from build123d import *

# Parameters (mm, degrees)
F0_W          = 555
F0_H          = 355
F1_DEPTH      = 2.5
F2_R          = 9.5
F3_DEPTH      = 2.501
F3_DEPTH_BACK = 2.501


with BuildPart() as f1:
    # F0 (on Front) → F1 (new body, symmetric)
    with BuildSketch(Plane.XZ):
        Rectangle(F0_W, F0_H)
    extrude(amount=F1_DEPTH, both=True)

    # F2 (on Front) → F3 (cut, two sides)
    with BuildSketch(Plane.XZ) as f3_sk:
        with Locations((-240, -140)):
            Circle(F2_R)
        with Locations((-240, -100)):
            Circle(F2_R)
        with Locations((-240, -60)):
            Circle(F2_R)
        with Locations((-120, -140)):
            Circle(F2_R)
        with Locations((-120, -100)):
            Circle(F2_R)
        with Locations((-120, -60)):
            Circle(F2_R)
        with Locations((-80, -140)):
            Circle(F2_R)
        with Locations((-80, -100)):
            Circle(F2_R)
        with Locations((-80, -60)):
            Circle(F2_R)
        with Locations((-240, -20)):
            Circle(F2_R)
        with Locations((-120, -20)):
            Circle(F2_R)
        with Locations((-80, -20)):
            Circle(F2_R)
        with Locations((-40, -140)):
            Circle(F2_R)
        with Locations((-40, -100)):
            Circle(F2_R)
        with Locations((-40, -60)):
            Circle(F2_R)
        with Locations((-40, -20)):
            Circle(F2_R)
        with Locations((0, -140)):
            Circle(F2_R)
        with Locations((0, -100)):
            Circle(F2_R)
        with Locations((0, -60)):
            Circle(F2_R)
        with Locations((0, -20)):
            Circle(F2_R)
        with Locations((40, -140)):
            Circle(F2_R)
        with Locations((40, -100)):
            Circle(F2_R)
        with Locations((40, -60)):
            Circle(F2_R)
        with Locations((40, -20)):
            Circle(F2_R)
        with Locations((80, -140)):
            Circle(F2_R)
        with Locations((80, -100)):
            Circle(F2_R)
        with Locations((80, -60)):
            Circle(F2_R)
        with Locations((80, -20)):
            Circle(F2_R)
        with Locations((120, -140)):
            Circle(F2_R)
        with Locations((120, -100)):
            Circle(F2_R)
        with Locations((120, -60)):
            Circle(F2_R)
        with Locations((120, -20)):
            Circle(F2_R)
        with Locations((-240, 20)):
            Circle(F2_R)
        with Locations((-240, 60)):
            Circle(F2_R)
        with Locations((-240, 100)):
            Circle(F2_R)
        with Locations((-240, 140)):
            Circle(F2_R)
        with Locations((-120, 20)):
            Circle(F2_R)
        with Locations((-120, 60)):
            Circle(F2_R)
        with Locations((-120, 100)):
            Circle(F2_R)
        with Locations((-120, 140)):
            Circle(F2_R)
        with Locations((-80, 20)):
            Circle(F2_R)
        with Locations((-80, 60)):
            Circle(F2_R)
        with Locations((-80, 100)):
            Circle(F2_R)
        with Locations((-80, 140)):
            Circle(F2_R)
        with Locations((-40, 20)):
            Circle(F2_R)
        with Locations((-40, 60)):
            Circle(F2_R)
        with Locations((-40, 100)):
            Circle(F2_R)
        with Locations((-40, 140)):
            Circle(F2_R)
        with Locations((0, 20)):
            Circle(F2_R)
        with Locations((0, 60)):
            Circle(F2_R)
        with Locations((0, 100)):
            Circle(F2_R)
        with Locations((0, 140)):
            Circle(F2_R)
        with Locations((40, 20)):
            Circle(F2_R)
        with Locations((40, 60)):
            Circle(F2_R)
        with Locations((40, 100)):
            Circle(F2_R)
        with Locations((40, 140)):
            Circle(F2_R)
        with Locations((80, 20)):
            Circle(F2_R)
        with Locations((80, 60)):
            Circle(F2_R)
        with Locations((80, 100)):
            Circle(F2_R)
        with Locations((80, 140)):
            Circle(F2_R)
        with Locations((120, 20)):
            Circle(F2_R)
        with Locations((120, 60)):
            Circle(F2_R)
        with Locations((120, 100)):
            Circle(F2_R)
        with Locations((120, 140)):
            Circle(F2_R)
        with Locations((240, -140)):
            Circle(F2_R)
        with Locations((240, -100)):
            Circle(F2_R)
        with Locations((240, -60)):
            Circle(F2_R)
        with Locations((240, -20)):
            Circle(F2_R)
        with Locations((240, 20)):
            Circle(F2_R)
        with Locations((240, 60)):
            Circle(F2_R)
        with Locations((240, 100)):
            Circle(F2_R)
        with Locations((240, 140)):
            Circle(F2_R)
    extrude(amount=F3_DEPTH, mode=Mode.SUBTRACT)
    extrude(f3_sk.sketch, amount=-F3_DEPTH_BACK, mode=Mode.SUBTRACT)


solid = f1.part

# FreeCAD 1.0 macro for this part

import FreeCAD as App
import Part
import Sketcher

V = App.Vector


def add_polygon(sketch, points):
    """Adds a closed chain of lines whose ends are joined by coincident constraints."""
    first, n = sketch.GeometryCount, len(points)
    for a, b in zip(points, points[1:] + points[:1]):
        sketch.addGeometry(Part.LineSegment(App.Vector(*a, 0), App.Vector(*b, 0)), False)
    for i in range(n):
        sketch.addConstraint(Sketcher.Constraint("Coincident", first + i, 2, first + (i + 1) % n, 1))

doc = App.newDocument("Part")
body = doc.addObject("PartDesign::Body", "Body")

# Sketch on XZ plane
sketch1 = body.newObject("Sketcher::SketchObject", "Sketch")
sketch1.AttachmentSupport = (doc.getObject("XZ_Plane"), [""])
sketch1.MapMode = "FlatFace"
add_polygon(sketch1, [(-278, 178), (-278, -178), (278, -178), (278, 178)])  # lines 0-3
sketch1.addConstraint(Sketcher.Constraint("Vertical", 0))
sketch1.addConstraint(Sketcher.Constraint("Horizontal", 1))
sketch1.addConstraint(Sketcher.Constraint("Vertical", 2))
sketch1.addConstraint(Sketcher.Constraint("Horizontal", 3))
sketch1.addConstraint(Sketcher.Constraint("Symmetric", 0, 2, 2, 2, -1, 1))
sketch1.addConstraint(Sketcher.Constraint("DistanceX", 1, 1, 1, 2, 555.0))
sketch1.addConstraint(Sketcher.Constraint("DistanceY", 0, 2, 0, 1, 355.0))
pad1 = body.newObject("PartDesign::Pad", "Pad")
pad1.Profile = sketch1
pad1.Length = 5
pad1.Midplane = True

# Sketch on XZ plane
sketch2 = body.newObject("Sketcher::SketchObject", "Sketch001")
sketch2.AttachmentSupport = (doc.getObject("XZ_Plane"), [""])
sketch2.MapMode = "FlatFace"
sketch2.addGeometry(Part.Circle(V(-240, -140, 0), V(0, 0, 1), 10), False)
sketch2.addGeometry(Part.Circle(V(-240, -100, 0), V(0, 0, 1), 10), False)
sketch2.addGeometry(Part.Circle(V(-240, -60, 0), V(0, 0, 1), 10), False)
sketch2.addGeometry(Part.Circle(V(-120, -140, 0), V(0, 0, 1), 10), False)
sketch2.addGeometry(Part.Circle(V(-120, -100, 0), V(0, 0, 1), 10), False)
sketch2.addGeometry(Part.Circle(V(-120, -60, 0), V(0, 0, 1), 10), False)
sketch2.addGeometry(Part.Circle(V(-80, -140, 0), V(0, 0, 1), 10), False)
sketch2.addGeometry(Part.Circle(V(-80, -100, 0), V(0, 0, 1), 10), False)
sketch2.addGeometry(Part.Circle(V(-80, -60, 0), V(0, 0, 1), 10), False)
sketch2.addGeometry(Part.Circle(V(-240, -20, 0), V(0, 0, 1), 10), False)
sketch2.addGeometry(Part.Circle(V(-120, -20, 0), V(0, 0, 1), 10), False)
sketch2.addGeometry(Part.Circle(V(-80, -20, 0), V(0, 0, 1), 10), False)
sketch2.addGeometry(Part.Circle(V(-40, -140, 0), V(0, 0, 1), 10), False)
sketch2.addGeometry(Part.Circle(V(-40, -100, 0), V(0, 0, 1), 10), False)
sketch2.addGeometry(Part.Circle(V(-40, -60, 0), V(0, 0, 1), 10), False)
sketch2.addGeometry(Part.Circle(V(-40, -20, 0), V(0, 0, 1), 10), False)
sketch2.addGeometry(Part.Circle(V(0, -140, 0), V(0, 0, 1), 10), False)
sketch2.addGeometry(Part.Circle(V(0, -100, 0), V(0, 0, 1), 10), False)
sketch2.addGeometry(Part.Circle(V(0, -60, 0), V(0, 0, 1), 10), False)
sketch2.addGeometry(Part.Circle(V(0, -20, 0), V(0, 0, 1), 10), False)
sketch2.addGeometry(Part.Circle(V(40, -140, 0), V(0, 0, 1), 10), False)
sketch2.addGeometry(Part.Circle(V(40, -100, 0), V(0, 0, 1), 10), False)
sketch2.addGeometry(Part.Circle(V(40, -60, 0), V(0, 0, 1), 10), False)
sketch2.addGeometry(Part.Circle(V(40, -20, 0), V(0, 0, 1), 10), False)
sketch2.addGeometry(Part.Circle(V(80, -140, 0), V(0, 0, 1), 10), False)
sketch2.addGeometry(Part.Circle(V(80, -100, 0), V(0, 0, 1), 10), False)
sketch2.addGeometry(Part.Circle(V(80, -60, 0), V(0, 0, 1), 10), False)
sketch2.addGeometry(Part.Circle(V(80, -20, 0), V(0, 0, 1), 10), False)
sketch2.addGeometry(Part.Circle(V(120, -140, 0), V(0, 0, 1), 10), False)
sketch2.addGeometry(Part.Circle(V(120, -100, 0), V(0, 0, 1), 10), False)
sketch2.addGeometry(Part.Circle(V(120, -60, 0), V(0, 0, 1), 10), False)
sketch2.addGeometry(Part.Circle(V(120, -20, 0), V(0, 0, 1), 10), False)
sketch2.addGeometry(Part.Circle(V(-240, 20, 0), V(0, 0, 1), 10), False)
sketch2.addGeometry(Part.Circle(V(-240, 60, 0), V(0, 0, 1), 10), False)
sketch2.addGeometry(Part.Circle(V(-240, 100, 0), V(0, 0, 1), 10), False)
sketch2.addGeometry(Part.Circle(V(-240, 140, 0), V(0, 0, 1), 10), False)
sketch2.addGeometry(Part.Circle(V(-120, 20, 0), V(0, 0, 1), 10), False)
sketch2.addGeometry(Part.Circle(V(-120, 60, 0), V(0, 0, 1), 10), False)
sketch2.addGeometry(Part.Circle(V(-120, 100, 0), V(0, 0, 1), 10), False)
sketch2.addGeometry(Part.Circle(V(-120, 140, 0), V(0, 0, 1), 10), False)
sketch2.addGeometry(Part.Circle(V(-80, 20, 0), V(0, 0, 1), 10), False)
sketch2.addGeometry(Part.Circle(V(-80, 60, 0), V(0, 0, 1), 10), False)
sketch2.addGeometry(Part.Circle(V(-80, 100, 0), V(0, 0, 1), 10), False)
sketch2.addGeometry(Part.Circle(V(-80, 140, 0), V(0, 0, 1), 10), False)
sketch2.addGeometry(Part.Circle(V(-40, 20, 0), V(0, 0, 1), 10), False)
sketch2.addGeometry(Part.Circle(V(-40, 60, 0), V(0, 0, 1), 10), False)
sketch2.addGeometry(Part.Circle(V(-40, 100, 0), V(0, 0, 1), 10), False)
sketch2.addGeometry(Part.Circle(V(-40, 140, 0), V(0, 0, 1), 10), False)
sketch2.addGeometry(Part.Circle(V(0, 20, 0), V(0, 0, 1), 10), False)
sketch2.addGeometry(Part.Circle(V(0, 60, 0), V(0, 0, 1), 10), False)
sketch2.addGeometry(Part.Circle(V(0, 100, 0), V(0, 0, 1), 10), False)
sketch2.addGeometry(Part.Circle(V(0, 140, 0), V(0, 0, 1), 10), False)
sketch2.addGeometry(Part.Circle(V(40, 20, 0), V(0, 0, 1), 10), False)
sketch2.addGeometry(Part.Circle(V(40, 60, 0), V(0, 0, 1), 10), False)
sketch2.addGeometry(Part.Circle(V(40, 100, 0), V(0, 0, 1), 10), False)
sketch2.addGeometry(Part.Circle(V(40, 140, 0), V(0, 0, 1), 10), False)
sketch2.addGeometry(Part.Circle(V(80, 20, 0), V(0, 0, 1), 10), False)
sketch2.addGeometry(Part.Circle(V(80, 60, 0), V(0, 0, 1), 10), False)
sketch2.addGeometry(Part.Circle(V(80, 100, 0), V(0, 0, 1), 10), False)
sketch2.addGeometry(Part.Circle(V(80, 140, 0), V(0, 0, 1), 10), False)
sketch2.addGeometry(Part.Circle(V(120, 20, 0), V(0, 0, 1), 10), False)
sketch2.addGeometry(Part.Circle(V(120, 60, 0), V(0, 0, 1), 10), False)
sketch2.addGeometry(Part.Circle(V(120, 100, 0), V(0, 0, 1), 10), False)
sketch2.addGeometry(Part.Circle(V(120, 140, 0), V(0, 0, 1), 10), False)
sketch2.addGeometry(Part.Circle(V(240, -140, 0), V(0, 0, 1), 10), False)
sketch2.addGeometry(Part.Circle(V(240, -100, 0), V(0, 0, 1), 10), False)
sketch2.addGeometry(Part.Circle(V(240, -60, 0), V(0, 0, 1), 10), False)
sketch2.addGeometry(Part.Circle(V(240, -20, 0), V(0, 0, 1), 10), False)
sketch2.addGeometry(Part.Circle(V(240, 20, 0), V(0, 0, 1), 10), False)
sketch2.addGeometry(Part.Circle(V(240, 60, 0), V(0, 0, 1), 10), False)
sketch2.addGeometry(Part.Circle(V(240, 100, 0), V(0, 0, 1), 10), False)
sketch2.addGeometry(Part.Circle(V(240, 140, 0), V(0, 0, 1), 10), False)
sketch2.addConstraint(Sketcher.Constraint("Equal", 0, 1))
sketch2.addConstraint(Sketcher.Constraint("Equal", 1, 2))
sketch2.addConstraint(Sketcher.Constraint("Equal", 2, 3))
sketch2.addConstraint(Sketcher.Constraint("Equal", 3, 4))
sketch2.addConstraint(Sketcher.Constraint("Equal", 4, 5))
sketch2.addConstraint(Sketcher.Constraint("Equal", 5, 6))
sketch2.addConstraint(Sketcher.Constraint("Equal", 6, 7))
sketch2.addConstraint(Sketcher.Constraint("Equal", 7, 8))
sketch2.addConstraint(Sketcher.Constraint("Equal", 8, 9))
sketch2.addConstraint(Sketcher.Constraint("Equal", 9, 10))
sketch2.addConstraint(Sketcher.Constraint("Equal", 10, 11))
sketch2.addConstraint(Sketcher.Constraint("Equal", 11, 12))
sketch2.addConstraint(Sketcher.Constraint("Equal", 12, 13))
sketch2.addConstraint(Sketcher.Constraint("Equal", 13, 14))
sketch2.addConstraint(Sketcher.Constraint("Equal", 14, 15))
sketch2.addConstraint(Sketcher.Constraint("Equal", 15, 16))
sketch2.addConstraint(Sketcher.Constraint("Equal", 16, 17))
sketch2.addConstraint(Sketcher.Constraint("Equal", 17, 18))
sketch2.addConstraint(Sketcher.Constraint("Equal", 18, 19))
sketch2.addConstraint(Sketcher.Constraint("Equal", 19, 20))
sketch2.addConstraint(Sketcher.Constraint("Equal", 20, 21))
sketch2.addConstraint(Sketcher.Constraint("Equal", 21, 22))
sketch2.addConstraint(Sketcher.Constraint("Equal", 22, 23))
sketch2.addConstraint(Sketcher.Constraint("Equal", 23, 24))
sketch2.addConstraint(Sketcher.Constraint("Equal", 24, 25))
sketch2.addConstraint(Sketcher.Constraint("Equal", 25, 26))
sketch2.addConstraint(Sketcher.Constraint("Equal", 26, 27))
sketch2.addConstraint(Sketcher.Constraint("Equal", 27, 28))
sketch2.addConstraint(Sketcher.Constraint("Equal", 28, 29))
sketch2.addConstraint(Sketcher.Constraint("Equal", 29, 30))
sketch2.addConstraint(Sketcher.Constraint("Equal", 30, 31))
sketch2.addConstraint(Sketcher.Constraint("Equal", 31, 32))
sketch2.addConstraint(Sketcher.Constraint("Equal", 32, 33))
sketch2.addConstraint(Sketcher.Constraint("Equal", 33, 34))
sketch2.addConstraint(Sketcher.Constraint("Equal", 34, 35))
sketch2.addConstraint(Sketcher.Constraint("Equal", 35, 36))
sketch2.addConstraint(Sketcher.Constraint("Equal", 36, 37))
sketch2.addConstraint(Sketcher.Constraint("Equal", 37, 38))
sketch2.addConstraint(Sketcher.Constraint("Equal", 38, 39))
sketch2.addConstraint(Sketcher.Constraint("Equal", 39, 40))
sketch2.addConstraint(Sketcher.Constraint("Equal", 40, 41))
sketch2.addConstraint(Sketcher.Constraint("Equal", 41, 42))
sketch2.addConstraint(Sketcher.Constraint("Equal", 42, 43))
sketch2.addConstraint(Sketcher.Constraint("Equal", 43, 44))
sketch2.addConstraint(Sketcher.Constraint("Equal", 44, 45))
sketch2.addConstraint(Sketcher.Constraint("Equal", 45, 46))
sketch2.addConstraint(Sketcher.Constraint("Equal", 46, 47))
sketch2.addConstraint(Sketcher.Constraint("Equal", 47, 48))
sketch2.addConstraint(Sketcher.Constraint("Equal", 48, 49))
sketch2.addConstraint(Sketcher.Constraint("Equal", 49, 50))
sketch2.addConstraint(Sketcher.Constraint("Equal", 50, 51))
sketch2.addConstraint(Sketcher.Constraint("Equal", 51, 52))
sketch2.addConstraint(Sketcher.Constraint("Equal", 52, 53))
sketch2.addConstraint(Sketcher.Constraint("Equal", 53, 54))
sketch2.addConstraint(Sketcher.Constraint("Equal", 54, 55))
sketch2.addConstraint(Sketcher.Constraint("Equal", 55, 56))
sketch2.addConstraint(Sketcher.Constraint("Equal", 56, 57))
sketch2.addConstraint(Sketcher.Constraint("Equal", 57, 58))
sketch2.addConstraint(Sketcher.Constraint("Equal", 58, 59))
sketch2.addConstraint(Sketcher.Constraint("Equal", 59, 60))
sketch2.addConstraint(Sketcher.Constraint("Equal", 60, 61))
sketch2.addConstraint(Sketcher.Constraint("Equal", 61, 62))
sketch2.addConstraint(Sketcher.Constraint("Equal", 62, 63))
sketch2.addConstraint(Sketcher.Constraint("Equal", 63, 64))
sketch2.addConstraint(Sketcher.Constraint("Equal", 64, 65))
sketch2.addConstraint(Sketcher.Constraint("Equal", 65, 66))
sketch2.addConstraint(Sketcher.Constraint("Equal", 66, 67))
sketch2.addConstraint(Sketcher.Constraint("Equal", 67, 68))
sketch2.addConstraint(Sketcher.Constraint("Equal", 68, 69))
sketch2.addConstraint(Sketcher.Constraint("Equal", 69, 70))
sketch2.addConstraint(Sketcher.Constraint("Equal", 70, 71))
sketch2.addConstraint(Sketcher.Constraint("Symmetric", 31, 3, 36, 3, -1, 1))
sketch2.addConstraint(Sketcher.Constraint("Symmetric", 30, 3, 37, 3, -1, 1))
sketch2.addConstraint(Sketcher.Constraint("Symmetric", 29, 3, 38, 3, -1, 1))
sketch2.addConstraint(Sketcher.Constraint("Symmetric", 28, 3, 39, 3, -1, 1))
sketch2.addConstraint(Sketcher.Constraint("Symmetric", 27, 3, 40, 3, -1, 1))
sketch2.addConstraint(Sketcher.Constraint("Symmetric", 26, 3, 41, 3, -1, 1))
sketch2.addConstraint(Sketcher.Constraint("Symmetric", 25, 3, 42, 3, -1, 1))
sketch2.addConstraint(Sketcher.Constraint("Symmetric", 24, 3, 43, 3, -1, 1))
sketch2.addConstraint(Sketcher.Constraint("Symmetric", 23, 3, 44, 3, -1, 1))
sketch2.addConstraint(Sketcher.Constraint("Symmetric", 22, 3, 45, 3, -1, 1))
sketch2.addConstraint(Sketcher.Constraint("Symmetric", 21, 3, 46, 3, -1, 1))
sketch2.addConstraint(Sketcher.Constraint("Symmetric", 20, 3, 47, 3, -1, 1))
sketch2.addConstraint(Sketcher.Constraint("Symmetric", 19, 3, 48, 3, -1, 1))
sketch2.addConstraint(Sketcher.Constraint("Symmetric", 18, 3, 49, 3, -1, 1))
sketch2.addConstraint(Sketcher.Constraint("Symmetric", 17, 3, 50, 3, -1, 1))
sketch2.addConstraint(Sketcher.Constraint("Symmetric", 16, 3, 51, 3, -1, 1))
sketch2.addConstraint(Sketcher.Constraint("Symmetric", 15, 3, 52, 3, -1, 1))
sketch2.addConstraint(Sketcher.Constraint("Symmetric", 14, 3, 53, 3, -1, 1))
sketch2.addConstraint(Sketcher.Constraint("Symmetric", 13, 3, 54, 3, -1, 1))
sketch2.addConstraint(Sketcher.Constraint("Symmetric", 12, 3, 55, 3, -1, 1))
sketch2.addConstraint(Sketcher.Constraint("Symmetric", 11, 3, 56, 3, -1, 1))
sketch2.addConstraint(Sketcher.Constraint("Symmetric", 8, 3, 57, 3, -1, 1))
sketch2.addConstraint(Sketcher.Constraint("Symmetric", 7, 3, 58, 3, -1, 1))
sketch2.addConstraint(Sketcher.Constraint("Symmetric", 6, 3, 59, 3, -1, 1))
sketch2.addConstraint(Sketcher.Constraint("Symmetric", 10, 3, 60, 3, -1, 1))
sketch2.addConstraint(Sketcher.Constraint("Symmetric", 5, 3, 61, 3, -1, 1))
sketch2.addConstraint(Sketcher.Constraint("Symmetric", 4, 3, 62, 3, -1, 1))
sketch2.addConstraint(Sketcher.Constraint("Symmetric", 3, 3, 63, 3, -1, 1))
sketch2.addConstraint(Sketcher.Constraint("Symmetric", 35, 3, 64, 3, -1, 1))
sketch2.addConstraint(Sketcher.Constraint("Symmetric", 34, 3, 65, 3, -1, 1))
sketch2.addConstraint(Sketcher.Constraint("Symmetric", 33, 3, 66, 3, -1, 1))
sketch2.addConstraint(Sketcher.Constraint("Symmetric", 32, 3, 67, 3, -1, 1))
sketch2.addConstraint(Sketcher.Constraint("Symmetric", 9, 3, 68, 3, -1, 1))
sketch2.addConstraint(Sketcher.Constraint("Symmetric", 2, 3, 69, 3, -1, 1))
sketch2.addConstraint(Sketcher.Constraint("Symmetric", 1, 3, 70, 3, -1, 1))
sketch2.addConstraint(Sketcher.Constraint("Symmetric", 0, 3, 71, 3, -1, 1))
sketch2.addConstraint(Sketcher.Constraint("Symmetric", 12, 3, 20, 3, -2))
sketch2.addConstraint(Sketcher.Constraint("Symmetric", 13, 3, 21, 3, -2))
sketch2.addConstraint(Sketcher.Constraint("Symmetric", 14, 3, 22, 3, -2))
sketch2.addConstraint(Sketcher.Constraint("Symmetric", 15, 3, 23, 3, -2))
sketch2.addConstraint(Sketcher.Constraint("Symmetric", 6, 3, 24, 3, -2))
sketch2.addConstraint(Sketcher.Constraint("Symmetric", 7, 3, 25, 3, -2))
sketch2.addConstraint(Sketcher.Constraint("Symmetric", 8, 3, 26, 3, -2))
sketch2.addConstraint(Sketcher.Constraint("Symmetric", 11, 3, 27, 3, -2))
sketch2.addConstraint(Sketcher.Constraint("Symmetric", 3, 3, 28, 3, -2))
sketch2.addConstraint(Sketcher.Constraint("Symmetric", 4, 3, 29, 3, -2))
sketch2.addConstraint(Sketcher.Constraint("Symmetric", 5, 3, 30, 3, -2))
sketch2.addConstraint(Sketcher.Constraint("Symmetric", 10, 3, 31, 3, -2))
sketch2.addConstraint(Sketcher.Constraint("Symmetric", 0, 3, 64, 3, -2))
sketch2.addConstraint(Sketcher.Constraint("Symmetric", 1, 3, 65, 3, -2))
sketch2.addConstraint(Sketcher.Constraint("Symmetric", 2, 3, 66, 3, -2))
sketch2.addConstraint(Sketcher.Constraint("Symmetric", 9, 3, 67, 3, -2))
sketch2.addConstraint(Sketcher.Constraint("PointOnObject", 16, 3, -2))
sketch2.addConstraint(Sketcher.Constraint("PointOnObject", 17, 3, -2))
sketch2.addConstraint(Sketcher.Constraint("PointOnObject", 18, 3, -2))
sketch2.addConstraint(Sketcher.Constraint("PointOnObject", 19, 3, -2))
sketch2.addConstraint(Sketcher.Constraint("Horizontal", 0, 3, 3, 3))
sketch2.addConstraint(Sketcher.Constraint("Horizontal", 1, 3, 4, 3))
sketch2.addConstraint(Sketcher.Constraint("Horizontal", 2, 3, 5, 3))
sketch2.addConstraint(Sketcher.Constraint("Horizontal", 3, 3, 6, 3))
sketch2.addConstraint(Sketcher.Constraint("Horizontal", 4, 3, 7, 3))
sketch2.addConstraint(Sketcher.Constraint("Horizontal", 5, 3, 8, 3))
sketch2.addConstraint(Sketcher.Constraint("Horizontal", 9, 3, 10, 3))
sketch2.addConstraint(Sketcher.Constraint("Horizontal", 10, 3, 11, 3))
sketch2.addConstraint(Sketcher.Constraint("Horizontal", 6, 3, 12, 3))
sketch2.addConstraint(Sketcher.Constraint("Horizontal", 7, 3, 13, 3))
sketch2.addConstraint(Sketcher.Constraint("Horizontal", 8, 3, 14, 3))
sketch2.addConstraint(Sketcher.Constraint("Horizontal", 11, 3, 15, 3))
sketch2.addConstraint(Sketcher.Constraint("Horizontal", 12, 3, 16, 3))
sketch2.addConstraint(Sketcher.Constraint("Horizontal", 13, 3, 17, 3))
sketch2.addConstraint(Sketcher.Constraint("Horizontal", 14, 3, 18, 3))
sketch2.addConstraint(Sketcher.Constraint("Horizontal", 15, 3, 19, 3))
sketch2.addConstraint(Sketcher.Constraint("Vertical", 0, 3, 1, 3))
sketch2.addConstraint(Sketcher.Constraint("Vertical", 1, 3, 2, 3))
sketch2.addConstraint(Sketcher.Constraint("Vertical", 3, 3, 4, 3))
sketch2.addConstraint(Sketcher.Constraint("Vertical", 4, 3, 5, 3))
sketch2.addConstraint(Sketcher.Constraint("Vertical", 6, 3, 7, 3))
sketch2.addConstraint(Sketcher.Constraint("Vertical", 7, 3, 8, 3))
sketch2.addConstraint(Sketcher.Constraint("Vertical", 2, 3, 9, 3))
sketch2.addConstraint(Sketcher.Constraint("Vertical", 5, 3, 10, 3))
sketch2.addConstraint(Sketcher.Constraint("Vertical", 8, 3, 11, 3))
sketch2.addConstraint(Sketcher.Constraint("Vertical", 12, 3, 13, 3))
sketch2.addConstraint(Sketcher.Constraint("Vertical", 13, 3, 14, 3))
sketch2.addConstraint(Sketcher.Constraint("Vertical", 14, 3, 15, 3))
sketch2.addConstraint(Sketcher.Constraint("Diameter", 0, 19.0))
sketch2.addConstraint(Sketcher.Constraint("DistanceX", 0, 3, -1, 1, 240.0))
sketch2.addConstraint(Sketcher.Constraint("DistanceY", 0, 3, -1, 1, 140.0))
sketch2.addConstraint(Sketcher.Constraint("DistanceY", 1, 3, -1, 1, 100.0))
sketch2.addConstraint(Sketcher.Constraint("DistanceY", 2, 3, -1, 1, 60.0))
sketch2.addConstraint(Sketcher.Constraint("DistanceX", 3, 3, -1, 1, 120.0))
sketch2.addConstraint(Sketcher.Constraint("DistanceX", 6, 3, -1, 1, 80.0))
sketch2.addConstraint(Sketcher.Constraint("DistanceY", 9, 3, -1, 1, 20.0))
sketch2.addConstraint(Sketcher.Constraint("DistanceX", 12, 3, -1, 1, 40.0))
pocket1 = body.newObject("PartDesign::Pocket", "Pocket")
pocket1.Profile = sketch2
pocket1.Type = "ThroughAll"
pocket1.Midplane = True

doc.recompute()
